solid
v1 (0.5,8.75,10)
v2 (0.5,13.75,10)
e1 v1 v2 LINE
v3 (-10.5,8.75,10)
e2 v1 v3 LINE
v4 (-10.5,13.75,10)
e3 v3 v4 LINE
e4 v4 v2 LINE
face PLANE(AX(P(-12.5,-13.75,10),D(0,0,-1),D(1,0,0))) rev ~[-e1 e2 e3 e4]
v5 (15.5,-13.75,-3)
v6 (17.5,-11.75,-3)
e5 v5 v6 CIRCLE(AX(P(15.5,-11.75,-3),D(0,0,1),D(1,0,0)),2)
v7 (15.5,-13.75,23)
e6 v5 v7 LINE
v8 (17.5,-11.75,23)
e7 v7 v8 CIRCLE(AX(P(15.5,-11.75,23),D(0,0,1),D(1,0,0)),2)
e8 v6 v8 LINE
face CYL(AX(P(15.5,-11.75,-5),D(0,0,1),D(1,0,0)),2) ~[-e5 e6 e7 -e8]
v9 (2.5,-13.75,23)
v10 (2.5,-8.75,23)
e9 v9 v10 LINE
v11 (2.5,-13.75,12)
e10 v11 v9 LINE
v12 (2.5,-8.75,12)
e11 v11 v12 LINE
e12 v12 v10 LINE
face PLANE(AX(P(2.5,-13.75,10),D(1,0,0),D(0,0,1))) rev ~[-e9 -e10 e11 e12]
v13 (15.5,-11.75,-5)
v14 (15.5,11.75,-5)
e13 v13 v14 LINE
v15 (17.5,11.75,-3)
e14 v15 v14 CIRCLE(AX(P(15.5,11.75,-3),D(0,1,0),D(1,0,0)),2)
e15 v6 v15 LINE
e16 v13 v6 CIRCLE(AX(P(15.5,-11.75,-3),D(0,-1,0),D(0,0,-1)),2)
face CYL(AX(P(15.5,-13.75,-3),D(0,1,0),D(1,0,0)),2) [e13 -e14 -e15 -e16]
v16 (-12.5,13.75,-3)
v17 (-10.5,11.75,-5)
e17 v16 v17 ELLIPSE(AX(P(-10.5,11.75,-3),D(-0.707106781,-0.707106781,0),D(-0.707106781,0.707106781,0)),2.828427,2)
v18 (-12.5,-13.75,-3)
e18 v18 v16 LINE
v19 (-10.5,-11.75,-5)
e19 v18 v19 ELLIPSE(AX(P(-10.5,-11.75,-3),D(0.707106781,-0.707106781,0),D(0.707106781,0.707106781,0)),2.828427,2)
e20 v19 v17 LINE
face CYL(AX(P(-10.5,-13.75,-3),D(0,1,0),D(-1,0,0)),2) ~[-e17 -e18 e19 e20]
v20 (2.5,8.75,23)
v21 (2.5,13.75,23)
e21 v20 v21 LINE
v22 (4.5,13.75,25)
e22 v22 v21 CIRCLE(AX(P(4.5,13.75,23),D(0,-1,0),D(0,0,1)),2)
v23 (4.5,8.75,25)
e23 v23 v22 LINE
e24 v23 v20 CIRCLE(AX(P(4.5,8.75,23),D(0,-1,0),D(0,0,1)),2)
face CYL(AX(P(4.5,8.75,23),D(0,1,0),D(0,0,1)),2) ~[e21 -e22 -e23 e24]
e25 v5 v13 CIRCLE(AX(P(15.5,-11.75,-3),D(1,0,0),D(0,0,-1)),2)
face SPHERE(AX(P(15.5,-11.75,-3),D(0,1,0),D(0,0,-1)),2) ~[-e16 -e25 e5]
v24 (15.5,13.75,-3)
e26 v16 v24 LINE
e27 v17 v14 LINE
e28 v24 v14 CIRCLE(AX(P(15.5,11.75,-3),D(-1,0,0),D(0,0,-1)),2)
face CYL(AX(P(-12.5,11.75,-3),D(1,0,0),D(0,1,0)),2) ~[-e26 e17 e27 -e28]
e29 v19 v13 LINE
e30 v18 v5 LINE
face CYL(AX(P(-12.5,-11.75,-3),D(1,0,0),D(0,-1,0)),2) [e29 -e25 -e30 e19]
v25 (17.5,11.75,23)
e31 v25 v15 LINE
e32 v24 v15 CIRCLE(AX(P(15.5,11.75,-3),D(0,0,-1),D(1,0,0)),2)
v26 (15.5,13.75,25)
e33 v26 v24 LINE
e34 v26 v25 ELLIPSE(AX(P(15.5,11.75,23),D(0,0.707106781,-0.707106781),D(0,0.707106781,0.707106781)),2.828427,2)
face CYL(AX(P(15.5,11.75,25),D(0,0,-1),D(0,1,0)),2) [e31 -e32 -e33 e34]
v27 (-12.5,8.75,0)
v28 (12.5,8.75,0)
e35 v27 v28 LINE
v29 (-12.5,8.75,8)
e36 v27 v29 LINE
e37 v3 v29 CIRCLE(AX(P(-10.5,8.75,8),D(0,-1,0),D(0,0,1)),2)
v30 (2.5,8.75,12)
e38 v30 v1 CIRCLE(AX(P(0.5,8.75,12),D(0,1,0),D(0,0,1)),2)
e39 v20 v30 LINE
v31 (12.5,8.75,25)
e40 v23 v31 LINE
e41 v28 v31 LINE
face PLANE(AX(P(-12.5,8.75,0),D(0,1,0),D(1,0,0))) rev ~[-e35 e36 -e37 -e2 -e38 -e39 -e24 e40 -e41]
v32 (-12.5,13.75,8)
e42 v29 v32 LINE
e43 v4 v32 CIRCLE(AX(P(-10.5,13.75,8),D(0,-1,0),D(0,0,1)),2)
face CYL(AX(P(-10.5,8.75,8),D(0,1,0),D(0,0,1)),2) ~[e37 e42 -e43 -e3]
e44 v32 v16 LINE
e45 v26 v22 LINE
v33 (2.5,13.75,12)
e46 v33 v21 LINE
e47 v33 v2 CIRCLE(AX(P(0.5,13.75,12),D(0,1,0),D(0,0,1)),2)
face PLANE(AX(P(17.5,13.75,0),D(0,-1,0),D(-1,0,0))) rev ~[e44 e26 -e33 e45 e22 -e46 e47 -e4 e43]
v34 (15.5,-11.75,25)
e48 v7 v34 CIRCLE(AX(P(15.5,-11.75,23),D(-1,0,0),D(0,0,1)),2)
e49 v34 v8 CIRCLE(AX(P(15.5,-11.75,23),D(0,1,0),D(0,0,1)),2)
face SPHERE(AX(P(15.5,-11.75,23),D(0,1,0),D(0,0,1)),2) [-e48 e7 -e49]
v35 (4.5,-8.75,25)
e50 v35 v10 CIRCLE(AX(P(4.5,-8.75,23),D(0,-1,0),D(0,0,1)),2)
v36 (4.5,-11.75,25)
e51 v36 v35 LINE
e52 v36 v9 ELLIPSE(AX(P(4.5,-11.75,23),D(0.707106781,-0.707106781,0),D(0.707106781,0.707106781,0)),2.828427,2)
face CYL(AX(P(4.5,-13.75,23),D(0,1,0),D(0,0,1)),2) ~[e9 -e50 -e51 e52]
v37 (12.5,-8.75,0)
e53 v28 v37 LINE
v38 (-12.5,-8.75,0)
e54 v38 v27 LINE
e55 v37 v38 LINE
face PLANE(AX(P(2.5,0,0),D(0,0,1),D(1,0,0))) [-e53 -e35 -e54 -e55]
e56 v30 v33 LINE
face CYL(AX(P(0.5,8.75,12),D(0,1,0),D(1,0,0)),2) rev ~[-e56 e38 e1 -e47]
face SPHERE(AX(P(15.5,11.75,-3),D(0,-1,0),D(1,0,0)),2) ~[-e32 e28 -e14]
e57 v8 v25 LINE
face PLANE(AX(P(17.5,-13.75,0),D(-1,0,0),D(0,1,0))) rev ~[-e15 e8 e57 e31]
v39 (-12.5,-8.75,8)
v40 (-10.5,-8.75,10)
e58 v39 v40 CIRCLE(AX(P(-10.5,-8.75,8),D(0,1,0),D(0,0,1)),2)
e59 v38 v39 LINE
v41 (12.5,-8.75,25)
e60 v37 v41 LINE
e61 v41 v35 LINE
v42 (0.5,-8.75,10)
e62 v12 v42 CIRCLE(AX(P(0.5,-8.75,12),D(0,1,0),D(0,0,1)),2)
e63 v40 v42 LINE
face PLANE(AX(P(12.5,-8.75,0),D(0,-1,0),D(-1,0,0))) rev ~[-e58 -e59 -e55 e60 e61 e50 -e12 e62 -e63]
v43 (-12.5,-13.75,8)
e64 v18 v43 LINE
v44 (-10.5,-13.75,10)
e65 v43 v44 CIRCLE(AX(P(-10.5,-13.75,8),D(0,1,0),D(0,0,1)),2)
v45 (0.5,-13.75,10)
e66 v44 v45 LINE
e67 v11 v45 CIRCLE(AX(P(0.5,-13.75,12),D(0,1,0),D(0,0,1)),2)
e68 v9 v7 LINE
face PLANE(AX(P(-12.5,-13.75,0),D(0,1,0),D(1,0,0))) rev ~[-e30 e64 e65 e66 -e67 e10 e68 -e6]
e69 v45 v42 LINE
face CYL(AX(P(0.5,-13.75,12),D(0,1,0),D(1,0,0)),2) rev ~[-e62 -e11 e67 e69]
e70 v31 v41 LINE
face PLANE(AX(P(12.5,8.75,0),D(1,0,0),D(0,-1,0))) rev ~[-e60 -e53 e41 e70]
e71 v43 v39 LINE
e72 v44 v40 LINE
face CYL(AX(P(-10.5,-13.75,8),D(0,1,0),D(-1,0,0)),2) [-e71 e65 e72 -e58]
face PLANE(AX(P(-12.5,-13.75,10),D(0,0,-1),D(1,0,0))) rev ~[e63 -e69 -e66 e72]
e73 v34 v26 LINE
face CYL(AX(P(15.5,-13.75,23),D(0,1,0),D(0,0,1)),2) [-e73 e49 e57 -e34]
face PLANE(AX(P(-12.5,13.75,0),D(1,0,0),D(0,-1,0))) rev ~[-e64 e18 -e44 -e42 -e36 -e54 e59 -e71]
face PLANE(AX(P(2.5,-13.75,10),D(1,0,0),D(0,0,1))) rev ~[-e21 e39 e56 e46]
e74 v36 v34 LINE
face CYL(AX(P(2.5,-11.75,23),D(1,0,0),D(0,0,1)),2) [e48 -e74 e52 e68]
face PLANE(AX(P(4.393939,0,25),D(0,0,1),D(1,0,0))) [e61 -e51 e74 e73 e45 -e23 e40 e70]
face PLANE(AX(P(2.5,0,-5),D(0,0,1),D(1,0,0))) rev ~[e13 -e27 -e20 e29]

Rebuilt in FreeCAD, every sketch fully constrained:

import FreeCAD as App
import Part
import Sketcher
from FreeCAD import Vector


def edges_at(feature, points):
    """Names of the edges that pass closest to the given points."""
    edges = feature.Shape.Edges
    near = lambda p: min(range(len(edges)), key=lambda i: edges[i].distToShape(Part.Vertex(*p))[0])
    return sorted({f"Edge{near(p) + 1}" for p in points})

doc = App.newDocument("Part")
body = doc.addObject("PartDesign::Body", "Body")

# Sketch on XY plane
sketch1 = body.newObject("Sketcher::SketchObject", "Sketch")
sketch1.AttachmentSupport = (doc.getObject("XY_Plane"), [""])
sketch1.MapMode = "FlatFace"
sketch1.addGeometry([
    Part.LineSegment(Vector(-12, 14, 0), Vector(-12, -14, 0)),
    Part.LineSegment(Vector(-12, -14, 0), Vector(18, -14, 0)),
    Part.LineSegment(Vector(18, -14, 0), Vector(18, 14, 0)),
    Part.LineSegment(Vector(18, 14, 0), Vector(-12, 14, 0)),
], False)
sketch1.addConstraint([
    Sketcher.Constraint("Coincident", 0, 2, 1, 1),
    Sketcher.Constraint("Coincident", 1, 2, 2, 1),
    Sketcher.Constraint("Coincident", 2, 2, 3, 1),
    Sketcher.Constraint("Coincident", 3, 2, 0, 1),
    Sketcher.Constraint("Vertical", 0),
    Sketcher.Constraint("Horizontal", 1),
    Sketcher.Constraint("Vertical", 2),
    Sketcher.Constraint("Horizontal", 3),
    Sketcher.Constraint("DistanceX", 1, 1, 1, 2, 30.0),
    Sketcher.Constraint("DistanceY", 0, 2, 0, 1, 27.5),
    Sketcher.Constraint("DistanceX", 0, 2, -1, 1, 12.5),
    Sketcher.Constraint("DistanceY", 0, 2, -1, 1, 13.75),
])
pad1 = body.newObject("PartDesign::Pad", "Pad")
pad1.Profile = sketch1
pad1.Length = 5
pad1.Reversed = True

# Sketch on XY plane
sketch2 = body.newObject("Sketcher::SketchObject", "Sketch001")
sketch2.AttachmentSupport = (doc.getObject("XY_Plane"), [""])
sketch2.MapMode = "FlatFace"
sketch2.addGeometry([
    Part.LineSegment(Vector(-12, 9, 0), Vector(12, 9, 0)),  # 0
    Part.LineSegment(Vector(12, 9, 0), Vector(12, -9, 0)),  # 1
    Part.LineSegment(Vector(12, -9, 0), Vector(-12, -9, 0)),  # 2
    Part.LineSegment(Vector(-12, -9, 0), Vector(-12, -14, 0)),  # 3
    Part.LineSegment(Vector(-12, -14, 0), Vector(18, -14, 0)),  # 4
    Part.LineSegment(Vector(18, -14, 0), Vector(18, 14, 0)),  # 5
    Part.LineSegment(Vector(18, 14, 0), Vector(-12, 14, 0)),  # 6
    Part.LineSegment(Vector(-12, 14, 0), Vector(-12, 9, 0)),  # 7
], False)
sketch2.addConstraint([
    Sketcher.Constraint("Coincident", 0, 2, 1, 1),
    Sketcher.Constraint("Coincident", 1, 2, 2, 1),
    Sketcher.Constraint("Coincident", 2, 2, 3, 1),
    Sketcher.Constraint("Coincident", 3, 2, 4, 1),
    Sketcher.Constraint("Coincident", 4, 2, 5, 1),
    Sketcher.Constraint("Coincident", 5, 2, 6, 1),
    Sketcher.Constraint("Coincident", 6, 2, 7, 1),
    Sketcher.Constraint("Coincident", 7, 2, 0, 1),
    Sketcher.Constraint("Horizontal", 0),
    Sketcher.Constraint("Vertical", 1),
    Sketcher.Constraint("Horizontal", 2),
    Sketcher.Constraint("Vertical", 3),
    Sketcher.Constraint("Horizontal", 4),
    Sketcher.Constraint("Vertical", 5),
    Sketcher.Constraint("Horizontal", 6),
    Sketcher.Constraint("Vertical", 7),
    Sketcher.Constraint("Symmetric", 0, 2, 2, 2, -1, 1),
    Sketcher.Constraint("Symmetric", 3, 2, 6, 2, -1),
    Sketcher.Constraint("DistanceX", 0, 1, 0, 2, 25.0),
    Sketcher.Constraint("DistanceX", 4, 1, 4, 2, 30.0),
    Sketcher.Constraint("DistanceY", 3, 2, 3, 1, 5.0),
    Sketcher.Constraint("DistanceY", 1, 2, 1, 1, 17.5),
])
pad2 = body.newObject("PartDesign::Pad", "Pad001")
pad2.Profile = sketch2
pad2.Length = 25

# Sketch on XZ plane
sketch3 = body.newObject("Sketcher::SketchObject", "Sketch002")
sketch3.AttachmentSupport = (doc.getObject("XZ_Plane"), [""])
sketch3.MapMode = "FlatFace"
sketch3.AttachmentOffset = App.Placement(Vector(0, 0, 13.75), App.Rotation())
sketch3.addGeometry([
    Part.LineSegment(Vector(-12, 25, 0), Vector(-12, 10, 0)),
    Part.LineSegment(Vector(-12, 10, 0), Vector(2, 10, 0)),
    Part.LineSegment(Vector(2, 10, 0), Vector(2, 25, 0)),
    Part.LineSegment(Vector(2, 25, 0), Vector(-12, 25, 0)),
], False)
sketch3.addConstraint([
    Sketcher.Constraint("Coincident", 0, 2, 1, 1),
    Sketcher.Constraint("Coincident", 1, 2, 2, 1),
    Sketcher.Constraint("Coincident", 2, 2, 3, 1),
    Sketcher.Constraint("Coincident", 3, 2, 0, 1),
    Sketcher.Constraint("Vertical", 0),
    Sketcher.Constraint("Horizontal", 1),
    Sketcher.Constraint("Vertical", 2),
    Sketcher.Constraint("Horizontal", 3),
    Sketcher.Constraint("Equal", 3, 0),
    Sketcher.Constraint("DistanceX", 1, 1, 1, 2, 15.0),
    Sketcher.Constraint("DistanceY", -1, 1, 0, 2, 10.0),
    Sketcher.Constraint("DistanceX", 0, 2, -1, 1, 12.5),
])
pocket1 = body.newObject("PartDesign::Pocket", "Pocket")
pocket1.Profile = sketch3
pocket1.Length = 27.5
doc.recompute()

fillet = body.newObject("PartDesign::Fillet", "Fillet")
fillet.Base = (pocket1, edges_at(pocket1, [
    (2.5, 11.25, 25),
    (2.5, 11.25, 10),
    (-12.5, 11.25, 10),
    (2.5, -11.25, 25),
    (2.5, -11.25, 10),
    (-12.5, -11.25, 10),
    (17.5, 0, 25),
    (-12.5, 0, -5),
    (17.5, 0, -5),
    (17.5, 13.75, 10),
    (2.5, 13.75, -5),
    (10, -13.75, 25),
    (2.5, -13.75, -5),
    (17.5, -13.75, 10),
]))
fillet.Radius = 2

doc.recompute()
